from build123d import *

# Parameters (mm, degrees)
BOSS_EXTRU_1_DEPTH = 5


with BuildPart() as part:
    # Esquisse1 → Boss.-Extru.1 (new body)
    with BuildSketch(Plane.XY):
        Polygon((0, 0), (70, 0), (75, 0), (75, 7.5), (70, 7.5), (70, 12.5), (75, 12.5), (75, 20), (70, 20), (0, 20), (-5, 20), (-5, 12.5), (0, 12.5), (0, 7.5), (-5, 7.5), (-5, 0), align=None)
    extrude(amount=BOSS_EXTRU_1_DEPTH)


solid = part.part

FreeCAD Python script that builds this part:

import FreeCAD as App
import Part
import Sketcher
from FreeCAD import Vector
Q = App.Units.Quantity

doc = App.newDocument("Part")
body = doc.addObject("PartDesign::Body", "Body")

sketch1 = doc.addObject("Sketcher::SketchObject", "Sketch")
body.addObject(sketch1)
sketch1.AttachmentSupport = (doc.XY_Plane, [""])
sketch1.MapMode = "FlatFace"
sketch1.addGeometry([
    Part.LineSegment(Vector(75, 0, 0), Vector(75, 8, 0)),
    Part.LineSegment(Vector(75, 8, 0), Vector(70, 8, 0)),
    Part.LineSegment(Vector(70, 8, 0), Vector(70, 12, 0)),
    Part.LineSegment(Vector(70, 12, 0), Vector(75, 12, 0)),
    Part.LineSegment(Vector(75, 12, 0), Vector(75, 20, 0)),
    Part.LineSegment(Vector(75, 20, 0), Vector(-5, 20, 0)),
    Part.LineSegment(Vector(-5, 20, 0), Vector(-5, 12, 0)),
    Part.LineSegment(Vector(-5, 12, 0), Vector(0, 12, 0)),
    Part.LineSegment(Vector(0, 12, 0), Vector(0, 8, 0)),
    Part.LineSegment(Vector(0, 8, 0), Vector(-5, 8, 0)),
    Part.LineSegment(Vector(-5, 8, 0), Vector(-5, 0, 0)),
    Part.LineSegment(Vector(-5, 0, 0), Vector(75, 0, 0)),
], False)
sketch1.addConstraint([
    Sketcher.Constraint("Coincident", 0, 2, 1, 1),
    Sketcher.Constraint("Coincident", 1, 2, 2, 1),
    Sketcher.Constraint("Coincident", 2, 2, 3, 1),
    Sketcher.Constraint("Coincident", 3, 2, 4, 1),
    Sketcher.Constraint("Coincident", 4, 2, 5, 1),
    Sketcher.Constraint("Coincident", 5, 2, 6, 1),
    Sketcher.Constraint("Coincident", 6, 2, 7, 1),
    Sketcher.Constraint("Coincident", 7, 2, 8, 1),
    Sketcher.Constraint("Coincident", 8, 2, 9, 1),
    Sketcher.Constraint("Coincident", 9, 2, 10, 1),
    Sketcher.Constraint("Coincident", 10, 2, 11, 1),
    Sketcher.Constraint("Coincident", 11, 2, 0, 1),
    Sketcher.Constraint("Vertical", 0),
    Sketcher.Constraint("Horizontal", 1),
    Sketcher.Constraint("Vertical", 2),
    Sketcher.Constraint("Horizontal", 3),
    Sketcher.Constraint("Vertical", 4),
    Sketcher.Constraint("Horizontal", 5),
    Sketcher.Constraint("Vertical", 6),
    Sketcher.Constraint("Horizontal", 7),
    Sketcher.Constraint("Vertical", 8),
    Sketcher.Constraint("Horizontal", 9),
    Sketcher.Constraint("Vertical", 10),
    Sketcher.Constraint("Horizontal", 11),
    Sketcher.Constraint("PointOnObject", 7, 2, -2),
    Sketcher.Constraint("PointOnObject", 10, 2, -1),
    Sketcher.Constraint("Horizontal", 3, 2, 6, 2),
    Sketcher.Constraint("Horizontal", 1, 2, 8, 2),
    Sketcher.Constraint("Vertical", 0, 2, 3, 2),
    Sketcher.Constraint("Vertical", 6, 2, 9, 2),
    Sketcher.Constraint("Equal", 3, 7),
    Sketcher.Constraint("Equal", 9, 2),
    Sketcher.Constraint("Equal", 0, 4),
    Sketcher.Constraint("DistanceX", 1, 2, 1, 1, Q("5 mm")),
    Sketcher.Constraint("DistanceX", 5, 2, 5, 1, Q("80 mm")),
    Sketcher.Constraint("DistanceY", 0, 1, 0, 2, Q("7.5 mm")),
])
pad1 = doc.addObject("PartDesign::Pad", "Pad")
body.addObject(pad1)
pad1.Profile = sketch1
pad1.Length = 5

doc.recompute()
